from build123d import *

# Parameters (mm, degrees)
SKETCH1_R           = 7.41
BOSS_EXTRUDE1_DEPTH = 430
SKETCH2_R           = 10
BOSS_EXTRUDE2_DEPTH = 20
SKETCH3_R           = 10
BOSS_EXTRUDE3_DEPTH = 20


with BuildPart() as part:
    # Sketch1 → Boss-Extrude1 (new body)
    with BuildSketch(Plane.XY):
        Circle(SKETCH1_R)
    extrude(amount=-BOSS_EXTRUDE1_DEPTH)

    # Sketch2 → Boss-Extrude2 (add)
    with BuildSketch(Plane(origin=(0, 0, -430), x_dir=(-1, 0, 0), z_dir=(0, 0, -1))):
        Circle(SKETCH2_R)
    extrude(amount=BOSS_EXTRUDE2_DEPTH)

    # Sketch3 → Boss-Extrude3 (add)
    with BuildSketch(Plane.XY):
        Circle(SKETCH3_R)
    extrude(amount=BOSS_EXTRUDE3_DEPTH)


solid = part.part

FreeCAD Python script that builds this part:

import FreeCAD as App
import Part
import Sketcher

V = App.Vector
Q = App.Units.Quantity

doc = App.newDocument("Part")
body = doc.addObject("PartDesign::Body", "Body")

sketch1 = body.newObject("Sketcher::SketchObject", "Sketch")
sketch1.AttachmentSupport = (doc.getObject("XY_Plane"), [""])
sketch1.MapMode = "FlatFace"
sketch1.addGeometry(Part.Circle(V(0, 0, 0), V(0, 0, 1), 7), False)
sketch1.addConstraint(Sketcher.Constraint("Coincident", 0, 3, -1, 1))
sketch1.addConstraint(Sketcher.Constraint("Diameter", 0, Q("14.82 mm")))
pad1 = body.newObject("PartDesign::Pad", "Pad")
pad1.Profile = sketch1
pad1.Length = 430
pad1.Reversed = True

sketch2 = body.newObject("Sketcher::SketchObject", "Sketch001")
sketch2.AttachmentSupport = (doc.getObject("XY_Plane"), [""])
sketch2.MapMode = "FlatFace"
sketch2.AttachmentOffset = App.Placement(V(0, 0, -430), App.Rotation())
sketch2.addGeometry(Part.Circle(V(0, 0, 0), V(0, 0, 1), 10), False)
sketch2.addConstraint(Sketcher.Constraint("Coincident", 0, 3, -1, 1))
sketch2.addConstraint(Sketcher.Constraint("Diameter", 0, Q("20 mm")))
pad2 = body.newObject("PartDesign::Pad", "Pad001")
pad2.Profile = sketch2
pad2.Length = 20
pad2.Reversed = True

sketch3 = body.newObject("Sketcher::SketchObject", "Sketch002")
sketch3.AttachmentSupport = (doc.getObject("XY_Plane"), [""])
sketch3.MapMode = "FlatFace"
sketch3.addGeometry(Part.Circle(V(0, 0, 0), V(0, 0, 1), 10), False)
sketch3.addConstraint(Sketcher.Constraint("Coincident", 0, 3, -1, 1))
sketch3.addConstraint(Sketcher.Constraint("Diameter", 0, Q("20 mm")))
pad3 = body.newObject("PartDesign::Pad", "Pad002")
pad3.Profile = sketch3
pad3.Length = 20

doc.recompute()
